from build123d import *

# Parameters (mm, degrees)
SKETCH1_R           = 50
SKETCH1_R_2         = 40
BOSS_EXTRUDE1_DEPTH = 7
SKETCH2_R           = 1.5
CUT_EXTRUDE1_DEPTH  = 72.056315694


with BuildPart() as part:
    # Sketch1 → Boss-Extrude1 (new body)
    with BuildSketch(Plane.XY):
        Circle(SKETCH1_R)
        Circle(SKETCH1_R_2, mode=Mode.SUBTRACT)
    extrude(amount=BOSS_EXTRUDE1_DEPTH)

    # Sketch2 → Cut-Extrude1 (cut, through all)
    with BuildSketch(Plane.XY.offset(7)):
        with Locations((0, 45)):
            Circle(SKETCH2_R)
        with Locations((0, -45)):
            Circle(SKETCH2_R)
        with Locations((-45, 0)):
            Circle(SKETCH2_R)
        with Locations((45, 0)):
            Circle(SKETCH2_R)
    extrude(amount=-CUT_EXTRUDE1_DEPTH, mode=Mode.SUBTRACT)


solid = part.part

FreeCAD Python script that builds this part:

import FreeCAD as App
import Part
import Sketcher
Q = App.Units.Quantity

doc = App.newDocument("Part")
body = doc.addObject("PartDesign::Body", "Body")

sketch1 = doc.addObject("Sketcher::SketchObject", "Sketch")
body.addObject(sketch1)
sketch1.AttachmentSupport = (doc.XY_Plane, [""])
sketch1.MapMode = "FlatFace"
sketch1.addGeometry([
    Part.Circle(App.Vector(0, 0, 0), App.Vector(0, 0, 1), 50),
    Part.Circle(App.Vector(0, 0, 0), App.Vector(0, 0, 1), 40),
], False)
sketch1.addConstraint([
    Sketcher.Constraint("Coincident", 0, 3, -1, 1),
    Sketcher.Constraint("Coincident", 1, 3, -1, 1),
    Sketcher.Constraint("Diameter", 0, Q("100 mm")),
    Sketcher.Constraint("Diameter", 1, Q("80 mm")),
])
pad1 = doc.addObject("PartDesign::Pad", "Pad")
body.addObject(pad1)
pad1.Profile = sketch1
pad1.Length = 7

sketch2 = doc.addObject("Sketcher::SketchObject", "Sketch001")
body.addObject(sketch2)
sketch2.AttachmentSupport = (doc.XY_Plane, [""])
sketch2.MapMode = "FlatFace"
sketch2.AttachmentOffset = App.Placement(App.Vector(0, 0, 7), App.Rotation())
sketch2.addGeometry([
    Part.Circle(App.Vector(0, 45, 0), App.Vector(0, 0, 1), 1.5),
    Part.Circle(App.Vector(0, -45, 0), App.Vector(0, 0, 1), 1.5),
    Part.Circle(App.Vector(-45, 0, 0), App.Vector(0, 0, 1), 1.5),
    Part.Circle(App.Vector(45, 0, 0), App.Vector(0, 0, 1), 1.5),
], False)
sketch2.addConstraint([
    Sketcher.Constraint("Equal", 0, 1),
    Sketcher.Constraint("Equal", 1, 2),
    Sketcher.Constraint("Equal", 2, 3),
    Sketcher.Constraint("Symmetric", 0, 3, 1, 3, -1, 1),
    Sketcher.Constraint("Symmetric", 2, 3, 3, 3, -1, 1),
    Sketcher.Constraint("PointOnObject", 0, 3, -2),
    Sketcher.Constraint("PointOnObject", 2, 3, -1),
    Sketcher.Constraint("Diameter", 0, Q("3 mm")),
    Sketcher.Constraint("DistanceY", -1, 1, 0, 3, Q("45 mm")),
    Sketcher.Constraint("DistanceX", 2, 3, -1, 1, Q("45 mm")),
])
pocket1 = doc.addObject("PartDesign::Pocket", "Pocket")
body.addObject(pocket1)
pocket1.Profile = sketch2
pocket1.Type = "ThroughAll"

doc.recompute()
